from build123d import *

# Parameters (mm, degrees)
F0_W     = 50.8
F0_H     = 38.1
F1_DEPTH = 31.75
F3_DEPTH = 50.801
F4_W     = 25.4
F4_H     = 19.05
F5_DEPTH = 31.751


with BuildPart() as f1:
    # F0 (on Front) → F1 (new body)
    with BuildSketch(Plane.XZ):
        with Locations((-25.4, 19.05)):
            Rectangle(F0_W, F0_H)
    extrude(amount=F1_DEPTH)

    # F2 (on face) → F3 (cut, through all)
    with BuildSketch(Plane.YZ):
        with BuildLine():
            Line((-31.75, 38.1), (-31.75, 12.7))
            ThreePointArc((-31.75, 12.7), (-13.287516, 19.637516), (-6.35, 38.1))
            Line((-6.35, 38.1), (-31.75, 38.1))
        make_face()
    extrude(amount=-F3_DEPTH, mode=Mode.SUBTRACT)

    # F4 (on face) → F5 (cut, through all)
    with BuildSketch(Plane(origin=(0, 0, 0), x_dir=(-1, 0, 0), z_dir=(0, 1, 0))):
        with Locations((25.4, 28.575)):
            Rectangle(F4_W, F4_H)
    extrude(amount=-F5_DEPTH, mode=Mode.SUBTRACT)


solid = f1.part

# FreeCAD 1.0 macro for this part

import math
import FreeCAD as App
import Part
import Sketcher
from FreeCAD import Vector
Q = App.Units.Quantity


def add_polygon(sketch, points):
    """Adds a closed chain of lines whose ends are joined by coincident constraints."""
    first, n = sketch.GeometryCount, len(points)
    for a, b in zip(points, points[1:] + points[:1]):
        sketch.addGeometry(Part.LineSegment(App.Vector(*a, 0), App.Vector(*b, 0)), False)
    for i in range(n):
        sketch.addConstraint(Sketcher.Constraint("Coincident", first + i, 2, first + (i + 1) % n, 1))

doc = App.newDocument("Part")
body = doc.addObject("PartDesign::Body", "Body")

# Sketch on XZ plane
sketch1 = doc.addObject("Sketcher::SketchObject", "Sketch")
body.addObject(sketch1)
sketch1.AttachmentSupport = (doc.XZ_Plane, [""])
sketch1.MapMode = "FlatFace"
add_polygon(sketch1, [(-51, 38), (-51, 0), (0, 0), (0, 38)])  # lines 0-3
sketch1.addConstraint(Sketcher.Constraint("Vertical", 0))
sketch1.addConstraint(Sketcher.Constraint("Horizontal", 1))
sketch1.addConstraint(Sketcher.Constraint("Vertical", 2))
sketch1.addConstraint(Sketcher.Constraint("Horizontal", 3))
sketch1.addConstraint(Sketcher.Constraint("Coincident", 1, 2, -1, 1))
sketch1.addConstraint(Sketcher.Constraint("DistanceX", 1, 1, 1, 2, Q("2 in")))
sketch1.addConstraint(Sketcher.Constraint("DistanceY", 0, 2, 0, 1, Q("1.5 in")))
pad1 = doc.addObject("PartDesign::Pad", "Pad")
body.addObject(pad1)
pad1.Profile = sketch1
pad1.Length = Q("1.25 in")

# Sketch on YZ plane
sketch2 = doc.addObject("Sketcher::SketchObject", "Sketch001")
body.addObject(sketch2)
sketch2.AttachmentSupport = (doc.YZ_Plane, [""])
sketch2.MapMode = "FlatFace"
sketch2.addGeometry(Part.LineSegment(Vector(-32, 38, 0), Vector(-32, 13, 0)), False)
sketch2.addGeometry(Part.ArcOfCircle(Part.Circle(Vector(-30, 37, 0), Vector(0, 0, 1), 24), math.radians(-94), math.radians(4)), False)
sketch2.addGeometry(Part.LineSegment(Vector(-6, 38, 0), Vector(-32, 38, 0)), False)
sketch2.addConstraint(Sketcher.Constraint("Coincident", 0, 2, 1, 1))
sketch2.addConstraint(Sketcher.Constraint("Coincident", 1, 2, 2, 1))
sketch2.addConstraint(Sketcher.Constraint("Coincident", 2, 2, 0, 1))
sketch2.addConstraint(Sketcher.Constraint("Vertical", 0))
sketch2.addConstraint(Sketcher.Constraint("Horizontal", 2))
sketch2.addConstraint(Sketcher.Constraint("Equal", 2, 0))
sketch2.addConstraint(Sketcher.Constraint("DistanceX", 2, 2, 2, 1, Q("1 in")))
sketch2.addConstraint(Sketcher.Constraint("DistanceY", -1, 1, 0, 2, Q("0.5 in")))
sketch2.addConstraint(Sketcher.Constraint("DistanceX", 0, 2, -1, 1, Q("1.25 in")))
sketch2.addConstraint(Sketcher.Constraint("Radius", 1, 23.866374))
pocket1 = doc.addObject("PartDesign::Pocket", "Pocket")
body.addObject(pocket1)
pocket1.Profile = sketch2
pocket1.Type = "ThroughAll"

# Sketch on XZ plane
sketch3 = doc.addObject("Sketcher::SketchObject", "Sketch002")
body.addObject(sketch3)
sketch3.AttachmentSupport = (doc.XZ_Plane, [""])
sketch3.MapMode = "FlatFace"
add_polygon(sketch3, [(-13, 38), (-13, 19), (-38, 19), (-38, 38)])  # lines 0-3
sketch3.addConstraint(Sketcher.Constraint("Vertical", 0))
sketch3.addConstraint(Sketcher.Constraint("Horizontal", 1))
sketch3.addConstraint(Sketcher.Constraint("Vertical", 2))
sketch3.addConstraint(Sketcher.Constraint("Horizontal", 3))
sketch3.addConstraint(Sketcher.Constraint("DistanceX", 1, 2, 1, 1, Q("1 in")))
sketch3.addConstraint(Sketcher.Constraint("DistanceY", 0, 2, 0, 1, Q("0.75 in")))
sketch3.addConstraint(Sketcher.Constraint("DistanceX", 0, 2, -1, 1, Q("0.5 in")))
sketch3.addConstraint(Sketcher.Constraint("DistanceY", -1, 1, 2, 2, Q("1.5 in")))
pocket2 = doc.addObject("PartDesign::Pocket", "Pocket001")
body.addObject(pocket2)
pocket2.Profile = sketch3
pocket2.Type = "ThroughAll"
pocket2.Reversed = True

doc.recompute()
